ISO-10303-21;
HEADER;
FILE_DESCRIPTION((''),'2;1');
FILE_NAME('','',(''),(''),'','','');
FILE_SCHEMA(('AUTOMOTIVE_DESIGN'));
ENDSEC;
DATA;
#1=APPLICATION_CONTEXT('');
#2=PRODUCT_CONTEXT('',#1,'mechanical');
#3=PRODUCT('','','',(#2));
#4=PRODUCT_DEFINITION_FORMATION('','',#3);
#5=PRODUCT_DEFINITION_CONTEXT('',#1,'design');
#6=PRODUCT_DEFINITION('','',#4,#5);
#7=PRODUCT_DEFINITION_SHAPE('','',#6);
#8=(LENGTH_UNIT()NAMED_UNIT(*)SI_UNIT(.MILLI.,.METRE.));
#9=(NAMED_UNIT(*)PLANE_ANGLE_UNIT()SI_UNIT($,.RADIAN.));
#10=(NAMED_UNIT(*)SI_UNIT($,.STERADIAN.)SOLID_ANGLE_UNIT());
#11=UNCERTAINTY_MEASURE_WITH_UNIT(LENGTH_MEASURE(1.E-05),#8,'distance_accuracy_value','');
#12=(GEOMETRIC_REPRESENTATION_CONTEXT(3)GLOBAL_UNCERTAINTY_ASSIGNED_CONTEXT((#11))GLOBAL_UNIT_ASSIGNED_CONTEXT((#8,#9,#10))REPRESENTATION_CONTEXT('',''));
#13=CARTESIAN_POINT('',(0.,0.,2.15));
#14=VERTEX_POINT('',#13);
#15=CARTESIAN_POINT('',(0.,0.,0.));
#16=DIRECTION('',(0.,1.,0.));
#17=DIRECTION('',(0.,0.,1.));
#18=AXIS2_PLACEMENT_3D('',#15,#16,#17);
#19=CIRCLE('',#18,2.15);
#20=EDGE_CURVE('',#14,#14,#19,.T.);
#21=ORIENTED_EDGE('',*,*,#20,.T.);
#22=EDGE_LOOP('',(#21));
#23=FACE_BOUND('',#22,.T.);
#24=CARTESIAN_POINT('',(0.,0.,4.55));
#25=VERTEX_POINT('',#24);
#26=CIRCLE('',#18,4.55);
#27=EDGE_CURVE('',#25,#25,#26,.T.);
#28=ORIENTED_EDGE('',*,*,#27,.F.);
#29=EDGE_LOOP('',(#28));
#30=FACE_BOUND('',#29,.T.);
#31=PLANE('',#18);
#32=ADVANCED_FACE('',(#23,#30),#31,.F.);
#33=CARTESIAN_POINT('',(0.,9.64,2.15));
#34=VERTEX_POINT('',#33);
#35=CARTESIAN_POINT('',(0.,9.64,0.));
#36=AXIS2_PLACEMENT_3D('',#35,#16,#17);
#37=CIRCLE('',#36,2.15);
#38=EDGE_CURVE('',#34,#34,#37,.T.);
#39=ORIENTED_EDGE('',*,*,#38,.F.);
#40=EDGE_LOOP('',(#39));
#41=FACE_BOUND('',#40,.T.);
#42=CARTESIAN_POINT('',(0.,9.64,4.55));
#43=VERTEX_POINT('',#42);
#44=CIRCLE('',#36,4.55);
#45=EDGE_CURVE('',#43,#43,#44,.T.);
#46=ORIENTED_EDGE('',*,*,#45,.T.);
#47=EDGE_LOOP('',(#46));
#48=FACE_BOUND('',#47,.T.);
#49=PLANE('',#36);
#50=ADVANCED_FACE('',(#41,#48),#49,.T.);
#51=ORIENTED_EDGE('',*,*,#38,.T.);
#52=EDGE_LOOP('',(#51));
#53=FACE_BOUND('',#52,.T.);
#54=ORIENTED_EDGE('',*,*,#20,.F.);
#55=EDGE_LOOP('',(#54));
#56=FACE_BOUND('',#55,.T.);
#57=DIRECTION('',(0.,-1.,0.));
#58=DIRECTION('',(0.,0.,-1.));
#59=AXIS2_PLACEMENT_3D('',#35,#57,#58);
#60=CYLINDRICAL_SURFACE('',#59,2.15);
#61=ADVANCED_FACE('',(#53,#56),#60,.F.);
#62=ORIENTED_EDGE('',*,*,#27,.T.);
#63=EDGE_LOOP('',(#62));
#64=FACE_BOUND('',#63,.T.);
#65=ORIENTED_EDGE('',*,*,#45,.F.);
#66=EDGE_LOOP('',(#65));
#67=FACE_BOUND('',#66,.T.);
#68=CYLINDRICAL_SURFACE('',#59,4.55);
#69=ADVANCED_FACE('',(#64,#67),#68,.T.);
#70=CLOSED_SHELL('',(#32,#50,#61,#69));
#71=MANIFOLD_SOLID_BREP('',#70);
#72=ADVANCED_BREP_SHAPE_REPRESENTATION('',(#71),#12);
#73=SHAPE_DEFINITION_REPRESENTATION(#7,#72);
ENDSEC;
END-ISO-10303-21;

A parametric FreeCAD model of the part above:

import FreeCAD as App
import Part
import Sketcher
Q = App.Units.Quantity

doc = App.newDocument("Part")
body = doc.addObject("PartDesign::Body", "Body")

# Sketch on XZ plane
sketch1 = doc.addObject("Sketcher::SketchObject", "Sketch")
body.addObject(sketch1)
sketch1.AttachmentSupport = (doc.XZ_Plane, [""])
sketch1.MapMode = "FlatFace"
sketch1.addGeometry(Part.Circle(App.Vector(0, 0, 0), App.Vector(0, 0, 1), 4.5), False)
sketch1.addGeometry(Part.Circle(App.Vector(0, 0, 0), App.Vector(0, 0, 1), 2.1), False)
sketch1.addConstraint(Sketcher.Constraint("Coincident", 0, 3, -1, 1))
sketch1.addConstraint(Sketcher.Constraint("Coincident", 1, 3, -1, 1))
sketch1.addConstraint(Sketcher.Constraint("Diameter", 0, Q("9.1 mm")))
sketch1.addConstraint(Sketcher.Constraint("Diameter", 1, Q("4.3 mm")))
pad1 = doc.addObject("PartDesign::Pad", "Pad")
body.addObject(pad1)
pad1.Profile = sketch1
pad1.Length = 9.64
pad1.Reversed = True

doc.recompute()
